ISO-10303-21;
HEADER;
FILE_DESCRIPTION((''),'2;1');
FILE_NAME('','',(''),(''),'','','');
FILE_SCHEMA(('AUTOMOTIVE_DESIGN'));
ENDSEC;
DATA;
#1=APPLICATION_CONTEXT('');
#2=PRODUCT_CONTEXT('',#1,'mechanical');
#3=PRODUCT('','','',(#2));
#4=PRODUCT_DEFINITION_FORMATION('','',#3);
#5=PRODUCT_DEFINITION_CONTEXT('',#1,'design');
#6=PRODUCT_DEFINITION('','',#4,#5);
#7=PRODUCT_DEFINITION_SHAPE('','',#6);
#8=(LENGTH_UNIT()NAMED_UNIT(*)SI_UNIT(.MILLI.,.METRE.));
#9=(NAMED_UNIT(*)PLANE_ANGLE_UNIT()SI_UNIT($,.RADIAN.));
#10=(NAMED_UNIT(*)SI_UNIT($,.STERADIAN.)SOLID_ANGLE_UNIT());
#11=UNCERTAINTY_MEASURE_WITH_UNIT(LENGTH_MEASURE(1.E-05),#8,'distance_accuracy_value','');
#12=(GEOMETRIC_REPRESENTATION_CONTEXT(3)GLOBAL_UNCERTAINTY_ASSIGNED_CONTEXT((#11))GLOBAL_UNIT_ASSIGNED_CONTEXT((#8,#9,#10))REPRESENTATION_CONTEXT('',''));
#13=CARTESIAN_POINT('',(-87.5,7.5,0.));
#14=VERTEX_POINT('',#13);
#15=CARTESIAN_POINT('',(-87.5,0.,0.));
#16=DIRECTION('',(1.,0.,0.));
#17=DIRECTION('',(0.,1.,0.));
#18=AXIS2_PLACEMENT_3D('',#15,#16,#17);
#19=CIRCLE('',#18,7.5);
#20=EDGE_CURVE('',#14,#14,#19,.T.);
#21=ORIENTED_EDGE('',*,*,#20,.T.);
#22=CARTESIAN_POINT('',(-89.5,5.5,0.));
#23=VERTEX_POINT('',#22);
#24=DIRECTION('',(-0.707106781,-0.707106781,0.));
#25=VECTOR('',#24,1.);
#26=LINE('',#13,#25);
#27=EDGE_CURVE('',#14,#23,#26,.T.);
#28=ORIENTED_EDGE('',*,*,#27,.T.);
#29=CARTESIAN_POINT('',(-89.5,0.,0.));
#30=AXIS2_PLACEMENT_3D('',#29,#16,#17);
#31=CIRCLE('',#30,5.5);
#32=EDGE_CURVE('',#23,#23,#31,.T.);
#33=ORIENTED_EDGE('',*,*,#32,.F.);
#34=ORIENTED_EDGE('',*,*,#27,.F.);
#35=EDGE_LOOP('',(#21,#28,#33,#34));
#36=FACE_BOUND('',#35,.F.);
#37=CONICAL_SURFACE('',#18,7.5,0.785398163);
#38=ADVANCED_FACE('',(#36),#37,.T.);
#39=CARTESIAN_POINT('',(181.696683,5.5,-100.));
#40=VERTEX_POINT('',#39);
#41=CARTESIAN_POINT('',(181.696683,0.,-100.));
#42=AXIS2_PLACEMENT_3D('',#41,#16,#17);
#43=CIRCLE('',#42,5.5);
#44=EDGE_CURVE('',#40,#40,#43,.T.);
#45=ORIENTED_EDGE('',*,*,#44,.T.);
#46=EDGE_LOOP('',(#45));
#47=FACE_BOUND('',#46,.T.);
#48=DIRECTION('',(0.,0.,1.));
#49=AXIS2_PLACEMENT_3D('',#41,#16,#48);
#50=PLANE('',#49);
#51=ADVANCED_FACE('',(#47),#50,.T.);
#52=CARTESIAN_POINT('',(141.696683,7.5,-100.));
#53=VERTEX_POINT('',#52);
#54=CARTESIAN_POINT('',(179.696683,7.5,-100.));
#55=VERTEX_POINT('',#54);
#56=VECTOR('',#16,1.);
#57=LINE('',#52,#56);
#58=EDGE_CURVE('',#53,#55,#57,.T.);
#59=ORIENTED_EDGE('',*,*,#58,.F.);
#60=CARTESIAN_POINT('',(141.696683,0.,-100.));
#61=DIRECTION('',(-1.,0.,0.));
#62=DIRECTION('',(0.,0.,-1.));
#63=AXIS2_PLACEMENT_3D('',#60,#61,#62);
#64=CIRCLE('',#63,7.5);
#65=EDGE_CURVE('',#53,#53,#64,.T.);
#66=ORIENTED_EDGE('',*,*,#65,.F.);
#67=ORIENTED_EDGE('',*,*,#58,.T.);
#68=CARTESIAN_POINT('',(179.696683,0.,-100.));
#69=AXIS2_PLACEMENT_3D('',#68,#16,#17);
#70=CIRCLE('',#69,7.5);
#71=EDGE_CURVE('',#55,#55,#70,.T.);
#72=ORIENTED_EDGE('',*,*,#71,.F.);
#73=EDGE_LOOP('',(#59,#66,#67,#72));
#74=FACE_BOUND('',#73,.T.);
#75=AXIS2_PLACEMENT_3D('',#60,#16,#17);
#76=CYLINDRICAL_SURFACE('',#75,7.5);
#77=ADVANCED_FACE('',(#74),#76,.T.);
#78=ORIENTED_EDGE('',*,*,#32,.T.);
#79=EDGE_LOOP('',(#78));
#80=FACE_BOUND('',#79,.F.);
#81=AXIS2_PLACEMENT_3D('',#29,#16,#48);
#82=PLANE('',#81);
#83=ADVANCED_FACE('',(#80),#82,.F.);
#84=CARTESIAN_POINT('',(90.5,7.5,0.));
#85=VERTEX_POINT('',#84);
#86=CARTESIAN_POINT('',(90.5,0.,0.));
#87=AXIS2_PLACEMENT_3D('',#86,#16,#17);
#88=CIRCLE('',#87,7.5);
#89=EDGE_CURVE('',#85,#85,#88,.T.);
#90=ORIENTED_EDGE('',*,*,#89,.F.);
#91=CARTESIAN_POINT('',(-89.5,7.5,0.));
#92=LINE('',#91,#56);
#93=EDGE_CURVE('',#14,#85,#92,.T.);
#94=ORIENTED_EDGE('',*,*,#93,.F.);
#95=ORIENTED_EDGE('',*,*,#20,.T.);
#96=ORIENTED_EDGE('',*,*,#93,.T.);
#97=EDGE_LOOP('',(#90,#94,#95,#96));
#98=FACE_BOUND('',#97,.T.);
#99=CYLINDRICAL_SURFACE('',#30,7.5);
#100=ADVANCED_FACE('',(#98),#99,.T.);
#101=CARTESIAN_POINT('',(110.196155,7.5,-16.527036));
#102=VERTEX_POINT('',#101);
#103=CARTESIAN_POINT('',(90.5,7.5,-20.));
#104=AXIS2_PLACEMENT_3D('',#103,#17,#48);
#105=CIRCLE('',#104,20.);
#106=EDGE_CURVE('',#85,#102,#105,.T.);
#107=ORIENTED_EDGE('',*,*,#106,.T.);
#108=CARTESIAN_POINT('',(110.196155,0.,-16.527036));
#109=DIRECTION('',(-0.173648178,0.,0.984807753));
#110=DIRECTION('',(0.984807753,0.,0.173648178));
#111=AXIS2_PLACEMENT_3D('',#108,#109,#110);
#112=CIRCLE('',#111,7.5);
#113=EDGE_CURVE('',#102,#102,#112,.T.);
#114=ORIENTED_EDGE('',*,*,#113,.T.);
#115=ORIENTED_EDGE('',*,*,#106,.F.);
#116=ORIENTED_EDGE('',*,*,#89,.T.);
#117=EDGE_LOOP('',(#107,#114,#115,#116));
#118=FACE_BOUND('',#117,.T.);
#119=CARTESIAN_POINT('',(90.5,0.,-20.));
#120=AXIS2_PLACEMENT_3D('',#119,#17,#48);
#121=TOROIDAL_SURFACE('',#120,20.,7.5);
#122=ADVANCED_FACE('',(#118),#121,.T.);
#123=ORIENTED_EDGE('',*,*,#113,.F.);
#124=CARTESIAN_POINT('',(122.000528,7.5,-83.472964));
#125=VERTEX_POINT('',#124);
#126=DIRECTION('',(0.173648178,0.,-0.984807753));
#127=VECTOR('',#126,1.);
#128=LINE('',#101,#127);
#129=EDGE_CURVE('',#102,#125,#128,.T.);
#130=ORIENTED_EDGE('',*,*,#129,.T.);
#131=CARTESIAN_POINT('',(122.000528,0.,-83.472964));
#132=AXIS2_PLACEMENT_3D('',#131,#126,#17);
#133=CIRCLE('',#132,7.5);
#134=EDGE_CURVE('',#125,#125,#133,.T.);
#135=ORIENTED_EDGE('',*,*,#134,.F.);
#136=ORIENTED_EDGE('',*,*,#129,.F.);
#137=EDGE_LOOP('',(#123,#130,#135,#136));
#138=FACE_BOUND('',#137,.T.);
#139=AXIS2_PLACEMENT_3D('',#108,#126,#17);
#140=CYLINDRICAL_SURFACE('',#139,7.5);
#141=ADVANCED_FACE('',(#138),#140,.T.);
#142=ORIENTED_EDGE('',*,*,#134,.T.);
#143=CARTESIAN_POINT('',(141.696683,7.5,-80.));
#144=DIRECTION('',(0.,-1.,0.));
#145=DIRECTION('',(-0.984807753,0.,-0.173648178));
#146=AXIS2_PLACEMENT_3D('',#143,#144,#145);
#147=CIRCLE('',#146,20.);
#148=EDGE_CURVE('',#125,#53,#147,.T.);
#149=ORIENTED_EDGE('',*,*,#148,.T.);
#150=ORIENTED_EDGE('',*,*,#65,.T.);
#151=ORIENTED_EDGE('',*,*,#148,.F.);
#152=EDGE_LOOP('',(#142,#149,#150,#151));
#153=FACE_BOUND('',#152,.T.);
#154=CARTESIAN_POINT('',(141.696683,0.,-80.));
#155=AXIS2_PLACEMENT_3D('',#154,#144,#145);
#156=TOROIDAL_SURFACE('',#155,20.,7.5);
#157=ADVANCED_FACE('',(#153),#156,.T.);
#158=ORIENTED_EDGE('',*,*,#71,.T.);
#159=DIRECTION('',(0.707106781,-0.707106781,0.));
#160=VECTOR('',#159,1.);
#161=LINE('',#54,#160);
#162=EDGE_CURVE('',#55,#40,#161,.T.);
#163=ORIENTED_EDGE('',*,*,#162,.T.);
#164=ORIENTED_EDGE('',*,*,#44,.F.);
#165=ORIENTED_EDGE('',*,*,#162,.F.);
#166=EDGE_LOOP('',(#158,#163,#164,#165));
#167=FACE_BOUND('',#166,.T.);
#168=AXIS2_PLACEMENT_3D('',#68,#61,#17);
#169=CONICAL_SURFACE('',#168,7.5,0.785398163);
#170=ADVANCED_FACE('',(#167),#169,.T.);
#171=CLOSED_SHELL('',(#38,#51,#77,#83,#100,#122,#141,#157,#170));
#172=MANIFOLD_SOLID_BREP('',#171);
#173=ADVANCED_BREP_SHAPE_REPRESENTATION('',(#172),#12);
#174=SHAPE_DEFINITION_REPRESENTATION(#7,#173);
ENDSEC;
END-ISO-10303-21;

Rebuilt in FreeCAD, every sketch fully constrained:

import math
import FreeCAD as App
import Part
import Sketcher
Q = App.Units.Quantity


def edges_at(feature, points):
    """Names of the edges that pass closest to the given points."""
    edges = feature.Shape.Edges
    near = lambda p: min(range(len(edges)), key=lambda i: edges[i].distToShape(Part.Vertex(*p))[0])
    return sorted({f"Edge{near(p) + 1}" for p in points})

doc = App.newDocument("Part")
body = doc.addObject("PartDesign::Body", "Body")

# Sketch on YZ plane
sketch1 = body.newObject("Sketcher::SketchObject", "Sketch")
sketch1.AttachmentSupport = (doc.getObject("YZ_Plane"), [""])
sketch1.MapMode = "FlatFace"
sketch1.AttachmentOffset = App.Placement(App.Vector(0, 0, -89.5), App.Rotation())
sketch1.addGeometry(Part.Circle(App.Vector(0, 0, 0), App.Vector(0, 0, 1), 7.5), False)
sketch1.addConstraint([
    Sketcher.Constraint("Coincident", 0, 3, -1, 1),
    Sketcher.Constraint("Diameter", 0, 15.0),
])

# Sketch on XZ plane
sketch2 = body.newObject("Sketcher::SketchObject", "Sketch001")
sketch2.AttachmentSupport = (doc.getObject("XZ_Plane"), [""])
sketch2.MapMode = "FlatFace"
sketch2.addGeometry([
    Part.LineSegment(App.Vector(-89.5, 0, 0), App.Vector(90.5, 0, 0)),  # 0
    Part.ArcOfCircle(Part.Circle(App.Vector(90.5, -20, 0), App.Vector(0, 0, 1), 20), math.radians(10), math.radians(90)),  # 1
    Part.LineSegment(App.Vector(110.196155, -16.527036, 0), App.Vector(122.000528, -83.472964, 0)),  # 2
    Part.ArcOfCircle(Part.Circle(App.Vector(141.696683, -80, 0), App.Vector(0, 0, 1), 20), math.radians(-170), math.radians(-90)),  # 3
    Part.LineSegment(App.Vector(141.696683, -100, 0), App.Vector(181.696683, -100, 0)),  # 4
], False)
sketch2.addConstraint([
    Sketcher.Constraint("Tangent", 0, 2, 1, 2),
    Sketcher.Constraint("Tangent", 1, 1, 2, 1),
    Sketcher.Constraint("Tangent", 2, 2, 3, 1),
    Sketcher.Constraint("Tangent", 3, 2, 4, 1),
    Sketcher.Constraint("Horizontal", 0),
    Sketcher.Constraint("Horizontal", 4),
    Sketcher.Constraint("Equal", 1, 3),
    Sketcher.Constraint("PointOnObject", 0, 1, -1),
    Sketcher.Constraint("Radius", 1, 20.0),
    Sketcher.Constraint("DistanceX", 0, 1, 0, 2, 180.0),
    Sketcher.Constraint("DistanceX", 4, 1, 4, 2, 40.0),
    Sketcher.Constraint("Angle", 2, Q("-80 deg")),
    Sketcher.Constraint("DistanceY", 3, 3, -1, 1, 80.0),
    Sketcher.Constraint("DistanceX", -1, 1, 1, 3, 90.5),
])
doc.recompute()

additivepipe = body.newObject("PartDesign::AdditivePipe", "AdditivePipe")
additivepipe.Profile = sketch1
additivepipe.Spine = (sketch2, ["Edge1", "Edge2", "Edge3", "Edge4", "Edge5"])
doc.recompute()

chamfer = body.newObject("PartDesign::Chamfer", "Chamfer")
chamfer.Base = (additivepipe, edges_at(additivepipe, [(181.697, -7.5, -100), (-89.5, -7.5, 0)]))
chamfer.Size = 2

doc.recompute()
